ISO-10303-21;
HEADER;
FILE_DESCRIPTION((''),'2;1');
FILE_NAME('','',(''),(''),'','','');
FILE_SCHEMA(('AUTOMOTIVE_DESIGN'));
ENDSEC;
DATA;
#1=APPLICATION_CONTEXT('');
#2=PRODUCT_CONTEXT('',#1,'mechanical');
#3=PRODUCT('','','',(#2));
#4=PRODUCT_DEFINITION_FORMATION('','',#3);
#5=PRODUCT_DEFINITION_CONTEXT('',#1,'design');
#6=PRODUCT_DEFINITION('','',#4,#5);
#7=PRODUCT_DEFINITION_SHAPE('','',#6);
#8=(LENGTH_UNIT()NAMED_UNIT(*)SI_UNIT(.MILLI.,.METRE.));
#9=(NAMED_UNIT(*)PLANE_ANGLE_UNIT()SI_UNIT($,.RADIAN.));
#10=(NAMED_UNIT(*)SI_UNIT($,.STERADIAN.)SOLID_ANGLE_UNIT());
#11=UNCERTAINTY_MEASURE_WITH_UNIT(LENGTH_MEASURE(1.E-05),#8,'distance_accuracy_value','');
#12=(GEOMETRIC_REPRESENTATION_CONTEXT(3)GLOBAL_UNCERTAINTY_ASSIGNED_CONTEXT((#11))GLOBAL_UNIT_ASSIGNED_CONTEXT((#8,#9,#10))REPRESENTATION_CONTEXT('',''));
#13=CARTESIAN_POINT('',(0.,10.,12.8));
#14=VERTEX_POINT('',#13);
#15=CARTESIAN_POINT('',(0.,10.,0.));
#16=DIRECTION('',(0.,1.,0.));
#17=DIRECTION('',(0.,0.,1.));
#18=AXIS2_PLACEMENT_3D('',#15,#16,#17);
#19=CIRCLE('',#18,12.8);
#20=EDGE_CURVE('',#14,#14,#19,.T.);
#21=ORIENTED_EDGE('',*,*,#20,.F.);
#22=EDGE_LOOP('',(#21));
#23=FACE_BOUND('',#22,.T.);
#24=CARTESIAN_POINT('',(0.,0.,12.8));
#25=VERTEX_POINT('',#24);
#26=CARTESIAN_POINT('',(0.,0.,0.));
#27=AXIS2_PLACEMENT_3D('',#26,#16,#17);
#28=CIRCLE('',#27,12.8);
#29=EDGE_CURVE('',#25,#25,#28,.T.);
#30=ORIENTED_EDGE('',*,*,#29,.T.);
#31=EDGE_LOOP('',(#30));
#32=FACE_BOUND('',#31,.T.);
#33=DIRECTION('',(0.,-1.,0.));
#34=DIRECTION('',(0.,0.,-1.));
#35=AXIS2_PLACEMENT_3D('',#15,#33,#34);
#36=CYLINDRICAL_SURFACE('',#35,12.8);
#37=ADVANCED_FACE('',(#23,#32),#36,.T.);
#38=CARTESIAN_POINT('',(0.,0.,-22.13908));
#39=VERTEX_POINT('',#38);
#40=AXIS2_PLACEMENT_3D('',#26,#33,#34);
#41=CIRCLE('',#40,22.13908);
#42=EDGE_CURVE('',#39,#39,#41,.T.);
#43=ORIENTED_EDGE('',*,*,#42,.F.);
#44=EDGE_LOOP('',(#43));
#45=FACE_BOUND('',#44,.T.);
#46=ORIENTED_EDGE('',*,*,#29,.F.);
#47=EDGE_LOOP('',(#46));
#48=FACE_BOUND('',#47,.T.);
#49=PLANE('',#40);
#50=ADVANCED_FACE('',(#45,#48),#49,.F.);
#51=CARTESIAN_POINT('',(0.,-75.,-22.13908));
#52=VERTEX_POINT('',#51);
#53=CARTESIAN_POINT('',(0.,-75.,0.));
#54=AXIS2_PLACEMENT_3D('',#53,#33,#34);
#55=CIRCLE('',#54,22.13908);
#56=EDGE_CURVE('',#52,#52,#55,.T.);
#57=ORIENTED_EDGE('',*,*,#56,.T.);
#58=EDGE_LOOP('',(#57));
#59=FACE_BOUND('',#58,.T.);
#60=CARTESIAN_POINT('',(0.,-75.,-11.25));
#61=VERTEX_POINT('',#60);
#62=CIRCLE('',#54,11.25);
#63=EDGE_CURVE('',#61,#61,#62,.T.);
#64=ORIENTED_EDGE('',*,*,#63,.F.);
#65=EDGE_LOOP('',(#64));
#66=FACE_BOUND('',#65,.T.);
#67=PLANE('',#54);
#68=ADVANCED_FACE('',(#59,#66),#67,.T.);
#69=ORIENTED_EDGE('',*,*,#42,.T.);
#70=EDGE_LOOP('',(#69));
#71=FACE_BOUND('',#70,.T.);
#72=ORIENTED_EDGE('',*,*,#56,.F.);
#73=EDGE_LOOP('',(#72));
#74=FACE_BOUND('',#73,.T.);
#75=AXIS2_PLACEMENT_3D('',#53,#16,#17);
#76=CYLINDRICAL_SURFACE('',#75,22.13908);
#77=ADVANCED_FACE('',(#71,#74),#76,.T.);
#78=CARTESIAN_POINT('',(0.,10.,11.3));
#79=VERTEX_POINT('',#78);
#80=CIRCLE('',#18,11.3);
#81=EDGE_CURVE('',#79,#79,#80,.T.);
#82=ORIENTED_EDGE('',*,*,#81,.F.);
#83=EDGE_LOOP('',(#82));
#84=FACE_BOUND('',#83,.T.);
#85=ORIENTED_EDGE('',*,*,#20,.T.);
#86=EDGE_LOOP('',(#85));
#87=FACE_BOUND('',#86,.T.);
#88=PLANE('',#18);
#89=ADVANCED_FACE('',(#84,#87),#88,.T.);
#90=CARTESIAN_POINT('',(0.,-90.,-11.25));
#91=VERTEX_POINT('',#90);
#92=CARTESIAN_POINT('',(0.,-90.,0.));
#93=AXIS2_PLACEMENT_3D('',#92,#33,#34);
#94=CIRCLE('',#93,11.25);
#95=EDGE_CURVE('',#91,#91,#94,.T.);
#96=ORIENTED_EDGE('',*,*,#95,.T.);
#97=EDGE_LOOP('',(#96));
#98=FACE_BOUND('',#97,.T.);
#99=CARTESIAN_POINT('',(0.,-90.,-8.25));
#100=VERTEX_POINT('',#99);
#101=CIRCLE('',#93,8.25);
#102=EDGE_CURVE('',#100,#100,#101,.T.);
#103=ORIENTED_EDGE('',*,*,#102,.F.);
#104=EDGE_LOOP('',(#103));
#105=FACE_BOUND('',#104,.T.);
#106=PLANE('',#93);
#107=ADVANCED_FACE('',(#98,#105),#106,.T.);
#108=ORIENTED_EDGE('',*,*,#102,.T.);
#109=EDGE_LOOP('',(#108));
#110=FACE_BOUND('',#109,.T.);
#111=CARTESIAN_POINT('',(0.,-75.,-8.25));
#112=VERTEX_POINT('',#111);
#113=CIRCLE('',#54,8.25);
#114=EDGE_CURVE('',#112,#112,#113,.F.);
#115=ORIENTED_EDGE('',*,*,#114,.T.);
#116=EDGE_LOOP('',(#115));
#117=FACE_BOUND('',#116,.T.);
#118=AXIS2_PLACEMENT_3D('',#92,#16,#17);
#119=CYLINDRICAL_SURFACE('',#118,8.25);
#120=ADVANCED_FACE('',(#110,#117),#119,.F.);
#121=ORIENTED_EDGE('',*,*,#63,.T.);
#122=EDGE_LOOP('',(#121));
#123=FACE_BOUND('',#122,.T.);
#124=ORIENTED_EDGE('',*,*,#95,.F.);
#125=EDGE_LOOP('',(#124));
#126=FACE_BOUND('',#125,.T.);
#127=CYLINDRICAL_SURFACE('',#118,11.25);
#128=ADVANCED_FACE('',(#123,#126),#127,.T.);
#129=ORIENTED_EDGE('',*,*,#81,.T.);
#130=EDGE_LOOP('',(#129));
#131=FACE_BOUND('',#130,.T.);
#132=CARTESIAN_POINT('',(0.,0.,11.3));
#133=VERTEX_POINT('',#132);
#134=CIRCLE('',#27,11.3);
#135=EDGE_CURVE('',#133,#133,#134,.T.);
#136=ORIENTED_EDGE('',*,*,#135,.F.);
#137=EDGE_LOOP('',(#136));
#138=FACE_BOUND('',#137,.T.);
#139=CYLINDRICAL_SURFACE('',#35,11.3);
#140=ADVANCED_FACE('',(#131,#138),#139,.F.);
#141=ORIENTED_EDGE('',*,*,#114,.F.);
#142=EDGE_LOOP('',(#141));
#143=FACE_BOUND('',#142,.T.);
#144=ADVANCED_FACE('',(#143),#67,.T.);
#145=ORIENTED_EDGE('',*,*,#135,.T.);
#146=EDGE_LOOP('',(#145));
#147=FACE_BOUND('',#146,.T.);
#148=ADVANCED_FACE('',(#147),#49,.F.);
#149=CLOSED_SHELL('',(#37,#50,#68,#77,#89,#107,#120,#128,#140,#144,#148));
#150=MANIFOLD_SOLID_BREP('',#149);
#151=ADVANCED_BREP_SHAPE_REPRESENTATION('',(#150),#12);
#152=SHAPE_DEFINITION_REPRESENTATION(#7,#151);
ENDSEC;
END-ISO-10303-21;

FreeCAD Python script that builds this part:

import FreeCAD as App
import Part
import Sketcher

doc = App.newDocument("Part")
params = doc.addObject("Spreadsheet::Sheet", "Params")
for row, (alias, value) in enumerate([
    ("sketch1_diameter", "25.6 mm"),
    ("sketch1_diameter2", "22.6 mm"),
    ("pad1_length", "10 mm"),
    ("pad2_length", "75 mm"),
    ("sketch3_diameter", "22.5 mm"),
    ("sketch3_diameter2", "16.5 mm"),
    ("pad3_length", "15 mm"),
], start=1):
    params.set(f"A{row}", alias)
    params.set(f"B{row}", "=" + value)
    params.setAlias(f"B{row}", alias)

body = doc.addObject("PartDesign::Body", "Body")

# Sketch on XZ plane
sketch1 = body.newObject("Sketcher::SketchObject", "Sketch")
sketch1.AttachmentSupport = (doc.getObject("XZ_Plane"), [""])
sketch1.MapMode = "FlatFace"
sketch1.addGeometry([
    Part.Circle(App.Vector(0, 0, 0), App.Vector(0, 0, 1), 13),
    Part.Circle(App.Vector(0, 0, 0), App.Vector(0, 0, 1), 11),
], False)
sketch1.addConstraint([
    Sketcher.Constraint("Coincident", 0, 3, -1, 1),
    Sketcher.Constraint("Coincident", 1, 3, -1, 1),
    Sketcher.Constraint("Diameter", 0, 25.6),
    Sketcher.Constraint("Diameter", 1, 22.6),
])
sketch1.setExpression("Constraints[2]", "Params.sketch1_diameter")
sketch1.setExpression("Constraints[3]", "Params.sketch1_diameter2")
pad1 = body.newObject("PartDesign::Pad", "Pad")
pad1.Profile = sketch1
pad1.setExpression("Length", "Params.pad1_length")
pad1.Reversed = True

# Sketch on XZ plane
sketch2 = body.newObject("Sketcher::SketchObject", "Sketch001")
sketch2.AttachmentSupport = (doc.getObject("XZ_Plane"), [""])
sketch2.MapMode = "FlatFace"
sketch2.addGeometry(Part.Circle(App.Vector(0, 0, 0), App.Vector(0, 0, 1), 22), False)
sketch2.addConstraint([
    Sketcher.Constraint("Coincident", 0, 3, -1, 1),
    Sketcher.Constraint("Diameter", 0, 44.278161),
])
pad2 = body.newObject("PartDesign::Pad", "Pad001")
pad2.Profile = sketch2
pad2.setExpression("Length", "Params.pad2_length")

# Sketch on XZ plane
sketch3 = body.newObject("Sketcher::SketchObject", "Sketch002")
sketch3.AttachmentSupport = (doc.getObject("XZ_Plane"), [""])
sketch3.MapMode = "FlatFace"
sketch3.AttachmentOffset = App.Placement(App.Vector(0, 0, 75), App.Rotation())
sketch3.addGeometry([
    Part.Circle(App.Vector(0, 0, 0), App.Vector(0, 0, 1), 11),
    Part.Circle(App.Vector(0, 0, 0), App.Vector(0, 0, 1), 8),
], False)
sketch3.addConstraint([
    Sketcher.Constraint("Coincident", 0, 3, -1, 1),
    Sketcher.Constraint("Coincident", 1, 3, -1, 1),
    Sketcher.Constraint("Diameter", 0, 22.5),
    Sketcher.Constraint("Diameter", 1, 16.5),
])
sketch3.setExpression("Constraints[2]", "Params.sketch3_diameter")
sketch3.setExpression("Constraints[3]", "Params.sketch3_diameter2")
pad3 = body.newObject("PartDesign::Pad", "Pad002")
pad3.Profile = sketch3
pad3.setExpression("Length", "Params.pad3_length")

doc.recompute()
